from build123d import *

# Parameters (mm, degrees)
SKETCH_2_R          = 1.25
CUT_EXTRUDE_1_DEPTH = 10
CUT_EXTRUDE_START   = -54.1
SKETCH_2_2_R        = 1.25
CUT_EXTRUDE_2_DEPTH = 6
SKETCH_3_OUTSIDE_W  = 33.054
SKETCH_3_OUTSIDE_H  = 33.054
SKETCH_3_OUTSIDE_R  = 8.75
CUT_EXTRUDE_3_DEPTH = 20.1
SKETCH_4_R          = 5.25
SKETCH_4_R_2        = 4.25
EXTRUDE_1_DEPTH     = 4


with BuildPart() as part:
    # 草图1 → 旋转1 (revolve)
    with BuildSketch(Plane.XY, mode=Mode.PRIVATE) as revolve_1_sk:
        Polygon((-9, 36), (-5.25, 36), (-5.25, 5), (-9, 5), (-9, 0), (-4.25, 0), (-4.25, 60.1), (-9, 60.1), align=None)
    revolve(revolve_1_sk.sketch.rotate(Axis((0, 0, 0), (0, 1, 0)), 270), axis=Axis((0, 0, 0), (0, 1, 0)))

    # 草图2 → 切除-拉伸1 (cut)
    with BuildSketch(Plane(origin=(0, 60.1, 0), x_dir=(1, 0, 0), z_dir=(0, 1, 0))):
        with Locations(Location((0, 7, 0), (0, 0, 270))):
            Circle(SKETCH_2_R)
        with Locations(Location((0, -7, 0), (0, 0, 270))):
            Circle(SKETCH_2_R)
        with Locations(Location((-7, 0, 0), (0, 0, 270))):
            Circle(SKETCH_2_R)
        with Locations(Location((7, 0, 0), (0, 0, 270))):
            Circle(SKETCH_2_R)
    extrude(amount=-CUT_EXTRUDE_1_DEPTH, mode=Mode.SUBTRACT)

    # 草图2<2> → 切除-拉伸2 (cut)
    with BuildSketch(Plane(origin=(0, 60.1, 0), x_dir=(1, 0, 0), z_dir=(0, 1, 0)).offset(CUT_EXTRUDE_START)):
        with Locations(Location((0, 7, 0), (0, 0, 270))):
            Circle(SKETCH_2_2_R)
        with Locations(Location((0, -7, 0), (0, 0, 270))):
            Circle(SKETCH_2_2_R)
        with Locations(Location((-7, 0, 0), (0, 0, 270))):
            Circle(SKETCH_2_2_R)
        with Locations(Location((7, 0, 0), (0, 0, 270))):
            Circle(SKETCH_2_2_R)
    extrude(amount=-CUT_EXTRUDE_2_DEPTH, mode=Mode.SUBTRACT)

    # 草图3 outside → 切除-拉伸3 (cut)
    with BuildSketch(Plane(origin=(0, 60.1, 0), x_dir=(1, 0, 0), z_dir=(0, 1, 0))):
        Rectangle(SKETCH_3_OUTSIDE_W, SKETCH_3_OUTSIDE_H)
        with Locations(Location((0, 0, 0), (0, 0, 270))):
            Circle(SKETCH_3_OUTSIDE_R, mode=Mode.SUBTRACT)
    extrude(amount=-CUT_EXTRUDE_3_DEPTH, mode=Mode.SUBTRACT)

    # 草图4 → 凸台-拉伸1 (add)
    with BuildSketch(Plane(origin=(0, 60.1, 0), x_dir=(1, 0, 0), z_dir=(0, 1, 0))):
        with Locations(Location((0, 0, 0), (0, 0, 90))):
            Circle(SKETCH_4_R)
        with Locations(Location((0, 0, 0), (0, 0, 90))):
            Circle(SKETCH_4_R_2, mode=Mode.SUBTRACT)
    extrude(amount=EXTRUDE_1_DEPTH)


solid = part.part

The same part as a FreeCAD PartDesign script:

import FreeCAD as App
import Part
import Sketcher
Q = App.Units.Quantity

doc = App.newDocument("Part")
body = doc.addObject("PartDesign::Body", "Body")

# Sketch on XY plane
sketch1 = body.newObject("Sketcher::SketchObject", "Sketch")
sketch1.AttachmentSupport = (doc.getObject("XY_Plane"), [""])
sketch1.MapMode = "FlatFace"
sketch1.addGeometry(Part.LineSegment(App.Vector(-9, 36, 0), App.Vector(-5.2, 36, 0)), False)
sketch1.addGeometry(Part.LineSegment(App.Vector(-5.2, 36, 0), App.Vector(-5.2, 5, 0)), False)
sketch1.addGeometry(Part.LineSegment(App.Vector(-5.2, 5, 0), App.Vector(-9, 5, 0)), False)
sketch1.addGeometry(Part.LineSegment(App.Vector(-9, 5, 0), App.Vector(-9, 0, 0)), False)
sketch1.addGeometry(Part.LineSegment(App.Vector(-9, 0, 0), App.Vector(-4.2, 0, 0)), False)
sketch1.addGeometry(Part.LineSegment(App.Vector(-4.2, 0, 0), App.Vector(-4.2, 60.1, 0)), False)
sketch1.addGeometry(Part.LineSegment(App.Vector(-4.2, 60.1, 0), App.Vector(-9, 60.1, 0)), False)
sketch1.addGeometry(Part.LineSegment(App.Vector(-9, 60.1, 0), App.Vector(-9, 36, 0)), False)
sketch1.addConstraint(Sketcher.Constraint("Coincident", 0, 2, 1, 1))
sketch1.addConstraint(Sketcher.Constraint("Coincident", 1, 2, 2, 1))
sketch1.addConstraint(Sketcher.Constraint("Coincident", 2, 2, 3, 1))
sketch1.addConstraint(Sketcher.Constraint("Coincident", 3, 2, 4, 1))
sketch1.addConstraint(Sketcher.Constraint("Coincident", 4, 2, 5, 1))
sketch1.addConstraint(Sketcher.Constraint("Coincident", 5, 2, 6, 1))
sketch1.addConstraint(Sketcher.Constraint("Coincident", 6, 2, 7, 1))
sketch1.addConstraint(Sketcher.Constraint("Coincident", 7, 2, 0, 1))
sketch1.addConstraint(Sketcher.Constraint("Horizontal", 0))
sketch1.addConstraint(Sketcher.Constraint("Vertical", 1))
sketch1.addConstraint(Sketcher.Constraint("Horizontal", 2))
sketch1.addConstraint(Sketcher.Constraint("Vertical", 3))
sketch1.addConstraint(Sketcher.Constraint("Horizontal", 4))
sketch1.addConstraint(Sketcher.Constraint("Vertical", 5))
sketch1.addConstraint(Sketcher.Constraint("Horizontal", 6))
sketch1.addConstraint(Sketcher.Constraint("Vertical", 7))
sketch1.addConstraint(Sketcher.Constraint("PointOnObject", 3, 2, -1))
sketch1.addConstraint(Sketcher.Constraint("Vertical", 3, 2, 6, 2))
sketch1.addConstraint(Sketcher.Constraint("DistanceY", 1, 2, 1, 1, Q("31 mm")))
sketch1.addConstraint(Sketcher.Constraint("DistanceY", 3, 2, 3, 1, Q("5 mm")))
sketch1.addConstraint(Sketcher.Constraint("DistanceY", 5, 1, 5, 2, Q("60.1 mm")))
sketch1.addConstraint(Sketcher.Constraint("DistanceX", 2, 2, -1, 1, Q("9 mm")))
sketch1.addConstraint(Sketcher.Constraint("DistanceX", 1, 2, 4, 2, Q("1 mm")))
sketch1.addConstraint(Sketcher.Constraint("DistanceX", 0, 1, 0, 2, Q("3.75 mm")))
revolution = body.newObject("PartDesign::Revolution", "Revolution")
revolution.Profile = sketch1
revolution.ReferenceAxis = (sketch1, ["V_Axis"])
revolution.Angle = 360

# Sketch on XZ plane
sketch2 = body.newObject("Sketcher::SketchObject", "Sketch001")
sketch2.AttachmentSupport = (doc.getObject("XZ_Plane"), [""])
sketch2.MapMode = "FlatFace"
sketch2.AttachmentOffset = App.Placement(App.Vector(0, 0, -60.1), App.Rotation())
sketch2.addGeometry(Part.Circle(App.Vector(0, -7, 0), App.Vector(0, 0, 1), 1.2), False)
sketch2.addGeometry(Part.Circle(App.Vector(0, 7, 0), App.Vector(0, 0, 1), 1.2), False)
sketch2.addGeometry(Part.Circle(App.Vector(-7, 0, 0), App.Vector(0, 0, 1), 1.2), False)
sketch2.addGeometry(Part.Circle(App.Vector(7, 0, 0), App.Vector(0, 0, 1), 1.2), False)
sketch2.addConstraint(Sketcher.Constraint("Equal", 0, 1))
sketch2.addConstraint(Sketcher.Constraint("Equal", 1, 2))
sketch2.addConstraint(Sketcher.Constraint("Equal", 2, 3))
sketch2.addConstraint(Sketcher.Constraint("Symmetric", 0, 3, 1, 3, -1, 1))
sketch2.addConstraint(Sketcher.Constraint("Symmetric", 2, 3, 3, 3, -1, 1))
sketch2.addConstraint(Sketcher.Constraint("PointOnObject", 0, 3, -2))
sketch2.addConstraint(Sketcher.Constraint("PointOnObject", 2, 3, -1))
sketch2.addConstraint(Sketcher.Constraint("Diameter", 0, Q("2.5 mm")))
sketch2.addConstraint(Sketcher.Constraint("DistanceY", 0, 3, -1, 1, Q("7 mm")))
sketch2.addConstraint(Sketcher.Constraint("DistanceX", 2, 3, -1, 1, Q("7 mm")))
pocket1 = body.newObject("PartDesign::Pocket", "Pocket")
pocket1.Profile = sketch2
pocket1.Length = 10
pocket1.Reversed = True

# Sketch on XZ plane
sketch3 = body.newObject("Sketcher::SketchObject", "Sketch002")
sketch3.AttachmentSupport = (doc.getObject("XZ_Plane"), [""])
sketch3.MapMode = "FlatFace"
sketch3.AttachmentOffset = App.Placement(App.Vector(0, 0, -6), App.Rotation())
sketch3.addGeometry(Part.Circle(App.Vector(0, -7, 0), App.Vector(0, 0, 1), 1.2), False)
sketch3.addGeometry(Part.Circle(App.Vector(0, 7, 0), App.Vector(0, 0, 1), 1.2), False)
sketch3.addGeometry(Part.Circle(App.Vector(-7, 0, 0), App.Vector(0, 0, 1), 1.2), False)
sketch3.addGeometry(Part.Circle(App.Vector(7, 0, 0), App.Vector(0, 0, 1), 1.2), False)
sketch3.addConstraint(Sketcher.Constraint("Equal", 0, 1))
sketch3.addConstraint(Sketcher.Constraint("Equal", 1, 2))
sketch3.addConstraint(Sketcher.Constraint("Equal", 2, 3))
sketch3.addConstraint(Sketcher.Constraint("Symmetric", 0, 3, 1, 3, -1, 1))
sketch3.addConstraint(Sketcher.Constraint("Symmetric", 2, 3, 3, 3, -1, 1))
sketch3.addConstraint(Sketcher.Constraint("PointOnObject", 0, 3, -2))
sketch3.addConstraint(Sketcher.Constraint("PointOnObject", 2, 3, -1))
sketch3.addConstraint(Sketcher.Constraint("Diameter", 0, Q("2.5 mm")))
sketch3.addConstraint(Sketcher.Constraint("DistanceY", 0, 3, -1, 1, Q("7 mm")))
sketch3.addConstraint(Sketcher.Constraint("DistanceX", 2, 3, -1, 1, Q("7 mm")))
pocket2 = body.newObject("PartDesign::Pocket", "Pocket001")
pocket2.Profile = sketch3
pocket2.Length = 6
pocket2.Reversed = True

# Sketch on XZ plane
sketch4 = body.newObject("Sketcher::SketchObject", "Sketch003")
sketch4.AttachmentSupport = (doc.getObject("XZ_Plane"), [""])
sketch4.MapMode = "FlatFace"
sketch4.AttachmentOffset = App.Placement(App.Vector(0, 0, -60.1), App.Rotation())
sketch4.addGeometry(Part.LineSegment(App.Vector(-17, -17, 0), App.Vector(-17, 17, 0)), False)
sketch4.addGeometry(Part.LineSegment(App.Vector(-17, 17, 0), App.Vector(17, 17, 0)), False)
sketch4.addGeometry(Part.LineSegment(App.Vector(17, 17, 0), App.Vector(17, -17, 0)), False)
sketch4.addGeometry(Part.LineSegment(App.Vector(17, -17, 0), App.Vector(-17, -17, 0)), False)
sketch4.addGeometry(Part.Circle(App.Vector(0, 0, 0), App.Vector(0, 0, 1), 9), False)
sketch4.addConstraint(Sketcher.Constraint("Coincident", 0, 2, 1, 1))
sketch4.addConstraint(Sketcher.Constraint("Coincident", 1, 2, 2, 1))
sketch4.addConstraint(Sketcher.Constraint("Coincident", 2, 2, 3, 1))
sketch4.addConstraint(Sketcher.Constraint("Coincident", 3, 2, 0, 1))
sketch4.addConstraint(Sketcher.Constraint("Vertical", 0))
sketch4.addConstraint(Sketcher.Constraint("Horizontal", 1))
sketch4.addConstraint(Sketcher.Constraint("Vertical", 2))
sketch4.addConstraint(Sketcher.Constraint("Horizontal", 3))
sketch4.addConstraint(Sketcher.Constraint("Coincident", 4, 3, -1, 1))
sketch4.addConstraint(Sketcher.Constraint("Symmetric", 0, 2, 2, 2, -1, 1))
sketch4.addConstraint(Sketcher.Constraint("Equal", 3, 0))
sketch4.addConstraint(Sketcher.Constraint("Diameter", 4, Q("17.5 mm")))
sketch4.addConstraint(Sketcher.Constraint("DistanceX", 1, 1, 1, 2, Q("33.054 mm")))
pocket3 = body.newObject("PartDesign::Pocket", "Pocket002")
pocket3.Profile = sketch4
pocket3.Length = 20.1
pocket3.Reversed = True

# Sketch on XZ plane
sketch5 = body.newObject("Sketcher::SketchObject", "Sketch004")
sketch5.AttachmentSupport = (doc.getObject("XZ_Plane"), [""])
sketch5.MapMode = "FlatFace"
sketch5.AttachmentOffset = App.Placement(App.Vector(0, 0, -60.1), App.Rotation())
sketch5.addGeometry(Part.Circle(App.Vector(0, 0, 0), App.Vector(0, 0, 1), 5.2), False)
sketch5.addGeometry(Part.Circle(App.Vector(0, 0, 0), App.Vector(0, 0, 1), 4.2), False)
sketch5.addConstraint(Sketcher.Constraint("Coincident", 0, 3, -1, 1))
sketch5.addConstraint(Sketcher.Constraint("Coincident", 1, 3, -1, 1))
sketch5.addConstraint(Sketcher.Constraint("Diameter", 0, Q("10.5 mm")))
sketch5.addConstraint(Sketcher.Constraint("Diameter", 1, Q("8.5 mm")))
pad1 = body.newObject("PartDesign::Pad", "Pad")
pad1.Profile = sketch5
pad1.Length = 4
pad1.Reversed = True

doc.recompute()
